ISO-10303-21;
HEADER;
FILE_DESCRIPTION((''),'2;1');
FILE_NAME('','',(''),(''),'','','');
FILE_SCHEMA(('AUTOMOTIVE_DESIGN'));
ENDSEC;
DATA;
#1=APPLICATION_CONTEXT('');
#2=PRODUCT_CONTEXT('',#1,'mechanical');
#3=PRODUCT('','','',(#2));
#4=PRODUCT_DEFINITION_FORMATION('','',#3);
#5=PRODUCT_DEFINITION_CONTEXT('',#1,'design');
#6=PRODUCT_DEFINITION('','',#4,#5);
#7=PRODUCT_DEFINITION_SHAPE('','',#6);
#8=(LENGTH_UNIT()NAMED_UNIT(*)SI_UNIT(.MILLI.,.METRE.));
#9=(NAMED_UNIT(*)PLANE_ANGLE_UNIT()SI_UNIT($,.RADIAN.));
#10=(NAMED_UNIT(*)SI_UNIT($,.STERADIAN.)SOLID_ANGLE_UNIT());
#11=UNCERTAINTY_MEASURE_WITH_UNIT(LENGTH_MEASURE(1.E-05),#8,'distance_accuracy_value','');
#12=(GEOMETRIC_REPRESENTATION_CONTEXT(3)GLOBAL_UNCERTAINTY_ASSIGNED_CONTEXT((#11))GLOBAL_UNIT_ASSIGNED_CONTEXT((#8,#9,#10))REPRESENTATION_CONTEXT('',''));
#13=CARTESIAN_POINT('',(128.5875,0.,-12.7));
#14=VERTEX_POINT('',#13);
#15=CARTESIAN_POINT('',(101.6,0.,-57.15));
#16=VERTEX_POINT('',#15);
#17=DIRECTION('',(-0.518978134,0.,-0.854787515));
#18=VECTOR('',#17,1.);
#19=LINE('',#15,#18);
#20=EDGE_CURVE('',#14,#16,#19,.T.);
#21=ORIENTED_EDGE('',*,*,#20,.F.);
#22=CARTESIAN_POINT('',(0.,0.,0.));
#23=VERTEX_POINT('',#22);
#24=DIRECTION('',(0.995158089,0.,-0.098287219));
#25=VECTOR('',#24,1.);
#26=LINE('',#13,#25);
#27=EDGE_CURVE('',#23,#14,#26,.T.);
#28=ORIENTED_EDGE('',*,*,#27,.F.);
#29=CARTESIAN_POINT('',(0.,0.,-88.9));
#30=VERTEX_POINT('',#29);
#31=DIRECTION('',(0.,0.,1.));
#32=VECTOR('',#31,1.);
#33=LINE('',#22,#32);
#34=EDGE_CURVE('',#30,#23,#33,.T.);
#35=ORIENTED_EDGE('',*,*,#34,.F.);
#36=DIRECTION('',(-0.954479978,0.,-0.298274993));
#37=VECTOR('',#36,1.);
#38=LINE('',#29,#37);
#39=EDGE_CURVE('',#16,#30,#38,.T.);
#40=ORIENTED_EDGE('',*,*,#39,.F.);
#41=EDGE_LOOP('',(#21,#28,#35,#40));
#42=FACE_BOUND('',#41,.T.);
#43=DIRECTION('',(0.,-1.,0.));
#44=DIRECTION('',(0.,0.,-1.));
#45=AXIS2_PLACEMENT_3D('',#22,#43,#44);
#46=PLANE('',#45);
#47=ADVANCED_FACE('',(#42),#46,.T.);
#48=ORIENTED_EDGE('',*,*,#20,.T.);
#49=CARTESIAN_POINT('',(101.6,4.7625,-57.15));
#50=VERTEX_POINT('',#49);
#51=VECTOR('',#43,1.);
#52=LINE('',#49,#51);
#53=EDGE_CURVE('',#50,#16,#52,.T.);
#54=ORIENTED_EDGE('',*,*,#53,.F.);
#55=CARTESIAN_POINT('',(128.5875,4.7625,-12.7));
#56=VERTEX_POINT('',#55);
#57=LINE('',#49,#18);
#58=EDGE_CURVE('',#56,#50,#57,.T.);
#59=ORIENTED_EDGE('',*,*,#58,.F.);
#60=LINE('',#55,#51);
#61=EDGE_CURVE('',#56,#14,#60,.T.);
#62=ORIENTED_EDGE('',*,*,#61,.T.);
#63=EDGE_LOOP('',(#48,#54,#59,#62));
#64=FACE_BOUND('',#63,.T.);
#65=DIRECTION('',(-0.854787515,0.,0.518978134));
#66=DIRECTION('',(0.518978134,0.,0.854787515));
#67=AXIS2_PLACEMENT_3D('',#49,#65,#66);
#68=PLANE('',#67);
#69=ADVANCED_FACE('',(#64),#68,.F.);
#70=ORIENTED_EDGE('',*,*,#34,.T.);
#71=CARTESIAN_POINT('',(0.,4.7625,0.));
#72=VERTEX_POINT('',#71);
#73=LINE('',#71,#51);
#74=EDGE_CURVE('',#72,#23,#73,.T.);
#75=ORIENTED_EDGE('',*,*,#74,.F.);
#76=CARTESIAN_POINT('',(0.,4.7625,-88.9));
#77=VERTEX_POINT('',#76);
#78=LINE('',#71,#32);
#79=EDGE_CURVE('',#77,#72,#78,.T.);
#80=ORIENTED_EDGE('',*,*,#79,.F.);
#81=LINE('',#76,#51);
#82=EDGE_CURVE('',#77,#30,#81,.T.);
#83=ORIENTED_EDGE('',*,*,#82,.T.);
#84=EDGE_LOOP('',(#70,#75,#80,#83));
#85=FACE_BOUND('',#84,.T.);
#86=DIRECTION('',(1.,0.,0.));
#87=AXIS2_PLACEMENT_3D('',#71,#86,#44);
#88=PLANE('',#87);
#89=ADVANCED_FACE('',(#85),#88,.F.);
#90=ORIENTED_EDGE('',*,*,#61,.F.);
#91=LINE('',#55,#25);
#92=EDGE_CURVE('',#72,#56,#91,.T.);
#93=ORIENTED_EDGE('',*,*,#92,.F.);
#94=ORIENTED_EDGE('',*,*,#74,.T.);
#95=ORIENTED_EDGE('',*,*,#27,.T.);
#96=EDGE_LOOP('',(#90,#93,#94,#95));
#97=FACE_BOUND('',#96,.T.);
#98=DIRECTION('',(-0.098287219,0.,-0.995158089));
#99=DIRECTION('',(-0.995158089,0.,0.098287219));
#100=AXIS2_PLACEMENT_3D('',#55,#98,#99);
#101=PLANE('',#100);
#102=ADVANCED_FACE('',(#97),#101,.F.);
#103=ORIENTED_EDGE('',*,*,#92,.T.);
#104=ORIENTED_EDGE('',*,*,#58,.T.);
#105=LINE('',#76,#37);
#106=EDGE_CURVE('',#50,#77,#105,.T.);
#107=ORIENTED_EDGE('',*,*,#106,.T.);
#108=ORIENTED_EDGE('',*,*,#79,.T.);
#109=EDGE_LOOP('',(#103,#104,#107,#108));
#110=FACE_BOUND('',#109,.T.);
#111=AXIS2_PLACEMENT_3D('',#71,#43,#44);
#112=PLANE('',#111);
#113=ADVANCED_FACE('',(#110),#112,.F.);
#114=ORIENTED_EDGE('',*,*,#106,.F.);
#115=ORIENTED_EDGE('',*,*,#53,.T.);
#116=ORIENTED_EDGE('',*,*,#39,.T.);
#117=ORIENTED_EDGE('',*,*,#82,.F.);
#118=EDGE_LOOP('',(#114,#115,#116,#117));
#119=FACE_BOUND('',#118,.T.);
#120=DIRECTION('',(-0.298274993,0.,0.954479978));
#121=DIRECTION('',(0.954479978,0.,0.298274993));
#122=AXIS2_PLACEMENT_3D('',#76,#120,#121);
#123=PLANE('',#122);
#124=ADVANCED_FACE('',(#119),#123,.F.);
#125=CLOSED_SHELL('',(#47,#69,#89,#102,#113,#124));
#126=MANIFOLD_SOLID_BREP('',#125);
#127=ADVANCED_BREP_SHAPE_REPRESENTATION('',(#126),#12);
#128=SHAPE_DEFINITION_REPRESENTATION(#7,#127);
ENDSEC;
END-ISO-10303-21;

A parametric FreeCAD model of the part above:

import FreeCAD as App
import Part
import Sketcher
Q = App.Units.Quantity

doc = App.newDocument("Part")
body = doc.addObject("PartDesign::Body", "Body")

# Sketch on XZ plane
sketch1 = body.newObject("Sketcher::SketchObject", "Sketch")
sketch1.AttachmentSupport = (doc.getObject("XZ_Plane"), [""])
sketch1.MapMode = "FlatFace"
sketch1.addGeometry([
    Part.LineSegment(App.Vector(0, -89, 0), App.Vector(0, 0, 0)),
    Part.LineSegment(App.Vector(0, 0, 0), App.Vector(129, -13, 0)),
    Part.LineSegment(App.Vector(129, -13, 0), App.Vector(102, -57, 0)),
    Part.LineSegment(App.Vector(102, -57, 0), App.Vector(0, -89, 0)),
], False)
sketch1.addConstraint([
    Sketcher.Constraint("Coincident", 0, 2, 1, 1),
    Sketcher.Constraint("Coincident", 1, 2, 2, 1),
    Sketcher.Constraint("Coincident", 2, 2, 3, 1),
    Sketcher.Constraint("Coincident", 3, 2, 0, 1),
    Sketcher.Constraint("Vertical", 0),
    Sketcher.Constraint("Coincident", 0, 2, -1, 1),
    Sketcher.Constraint("DistanceY", 0, 1, 0, 2, Q("3.5 in")),
    Sketcher.Constraint("DistanceX", -1, 1, 2, 2, Q("4 in")),
    Sketcher.Constraint("DistanceY", 3, 2, 1, 2, Q("3 in")),
    Sketcher.Constraint("DistanceY", 2, 2, -1, 1, Q("2.25 in")),
    Sketcher.Constraint("DistanceX", -1, 1, 1, 2, Q("5.0625 in")),
])
pad1 = body.newObject("PartDesign::Pad", "Pad")
pad1.Profile = sketch1
pad1.Length = Q("0.1875 in")
pad1.Reversed = True

doc.recompute()
